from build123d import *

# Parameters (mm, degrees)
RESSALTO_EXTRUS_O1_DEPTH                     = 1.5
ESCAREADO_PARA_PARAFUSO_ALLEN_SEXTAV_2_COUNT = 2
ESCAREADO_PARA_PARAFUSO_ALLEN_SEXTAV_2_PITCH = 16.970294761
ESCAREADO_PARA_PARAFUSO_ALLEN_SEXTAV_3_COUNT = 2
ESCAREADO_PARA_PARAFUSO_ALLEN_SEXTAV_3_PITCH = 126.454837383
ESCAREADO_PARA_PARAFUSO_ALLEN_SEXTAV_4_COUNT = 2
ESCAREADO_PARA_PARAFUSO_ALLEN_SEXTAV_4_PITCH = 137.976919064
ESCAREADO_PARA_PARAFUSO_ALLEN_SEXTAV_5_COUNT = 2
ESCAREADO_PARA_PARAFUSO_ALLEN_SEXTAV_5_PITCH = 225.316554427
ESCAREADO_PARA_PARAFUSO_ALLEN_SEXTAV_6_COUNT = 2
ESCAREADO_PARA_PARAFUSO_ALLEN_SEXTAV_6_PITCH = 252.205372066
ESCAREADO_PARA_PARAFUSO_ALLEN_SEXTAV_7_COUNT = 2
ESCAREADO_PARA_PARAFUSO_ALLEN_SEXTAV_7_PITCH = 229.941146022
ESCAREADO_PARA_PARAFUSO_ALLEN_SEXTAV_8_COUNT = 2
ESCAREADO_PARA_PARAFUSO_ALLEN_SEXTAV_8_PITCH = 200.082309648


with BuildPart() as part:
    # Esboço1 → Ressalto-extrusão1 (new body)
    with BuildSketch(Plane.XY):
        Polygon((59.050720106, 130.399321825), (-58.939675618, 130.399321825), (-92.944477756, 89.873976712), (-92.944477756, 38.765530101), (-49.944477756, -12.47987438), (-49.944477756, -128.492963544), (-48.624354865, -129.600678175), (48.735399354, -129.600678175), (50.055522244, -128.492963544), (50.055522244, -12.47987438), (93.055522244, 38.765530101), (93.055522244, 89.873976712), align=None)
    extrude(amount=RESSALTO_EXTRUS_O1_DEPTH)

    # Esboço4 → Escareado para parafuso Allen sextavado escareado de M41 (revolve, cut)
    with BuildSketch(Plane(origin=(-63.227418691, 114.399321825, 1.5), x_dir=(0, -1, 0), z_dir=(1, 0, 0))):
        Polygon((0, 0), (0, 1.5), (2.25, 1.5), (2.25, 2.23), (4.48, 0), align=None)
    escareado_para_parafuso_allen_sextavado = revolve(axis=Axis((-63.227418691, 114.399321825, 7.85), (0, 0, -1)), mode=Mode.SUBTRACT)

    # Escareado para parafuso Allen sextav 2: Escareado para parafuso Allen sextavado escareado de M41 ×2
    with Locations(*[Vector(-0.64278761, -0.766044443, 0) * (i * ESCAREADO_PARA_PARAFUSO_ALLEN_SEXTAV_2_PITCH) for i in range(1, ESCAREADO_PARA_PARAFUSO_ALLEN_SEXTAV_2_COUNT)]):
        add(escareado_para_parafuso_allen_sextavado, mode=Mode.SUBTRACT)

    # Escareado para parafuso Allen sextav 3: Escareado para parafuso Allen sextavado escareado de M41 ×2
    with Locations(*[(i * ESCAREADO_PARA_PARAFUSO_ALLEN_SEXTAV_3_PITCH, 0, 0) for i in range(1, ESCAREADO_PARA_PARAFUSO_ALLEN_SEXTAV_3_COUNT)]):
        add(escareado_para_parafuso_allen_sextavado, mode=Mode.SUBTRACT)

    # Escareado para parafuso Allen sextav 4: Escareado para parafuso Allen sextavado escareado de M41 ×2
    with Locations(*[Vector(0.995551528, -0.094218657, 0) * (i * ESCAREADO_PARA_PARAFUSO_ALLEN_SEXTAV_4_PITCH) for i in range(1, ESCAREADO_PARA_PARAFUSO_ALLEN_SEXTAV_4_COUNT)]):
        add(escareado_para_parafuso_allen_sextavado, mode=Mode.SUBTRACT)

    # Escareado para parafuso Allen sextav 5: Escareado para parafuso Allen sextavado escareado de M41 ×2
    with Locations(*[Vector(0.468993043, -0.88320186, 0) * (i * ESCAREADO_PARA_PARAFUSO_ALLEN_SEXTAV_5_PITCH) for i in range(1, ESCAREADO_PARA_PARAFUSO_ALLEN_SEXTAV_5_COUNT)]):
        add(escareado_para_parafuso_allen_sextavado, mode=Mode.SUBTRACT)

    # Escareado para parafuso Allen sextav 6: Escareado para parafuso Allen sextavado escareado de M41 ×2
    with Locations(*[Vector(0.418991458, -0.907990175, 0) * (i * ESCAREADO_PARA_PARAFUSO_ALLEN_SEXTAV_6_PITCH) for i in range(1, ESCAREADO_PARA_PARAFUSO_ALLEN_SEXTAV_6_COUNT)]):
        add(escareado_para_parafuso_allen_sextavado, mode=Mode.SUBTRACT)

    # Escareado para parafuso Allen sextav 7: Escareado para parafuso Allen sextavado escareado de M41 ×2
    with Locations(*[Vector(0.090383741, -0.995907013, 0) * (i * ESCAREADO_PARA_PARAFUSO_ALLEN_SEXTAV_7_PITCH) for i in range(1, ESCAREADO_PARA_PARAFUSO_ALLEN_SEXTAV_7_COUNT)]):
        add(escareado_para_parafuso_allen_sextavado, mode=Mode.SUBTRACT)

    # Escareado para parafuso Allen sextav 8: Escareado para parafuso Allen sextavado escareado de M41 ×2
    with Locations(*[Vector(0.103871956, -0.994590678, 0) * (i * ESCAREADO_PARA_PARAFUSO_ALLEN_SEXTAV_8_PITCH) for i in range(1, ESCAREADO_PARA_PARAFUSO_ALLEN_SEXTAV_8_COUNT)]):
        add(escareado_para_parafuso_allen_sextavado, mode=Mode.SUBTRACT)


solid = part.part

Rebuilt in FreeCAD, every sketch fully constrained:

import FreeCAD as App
import Part
import Sketcher
Q = App.Units.Quantity


def add_polygon(sketch, points):
    """Adds a closed chain of lines whose ends are joined by coincident constraints."""
    first, n = sketch.GeometryCount, len(points)
    for a, b in zip(points, points[1:] + points[:1]):
        sketch.addGeometry(Part.LineSegment(App.Vector(*a, 0), App.Vector(*b, 0)), False)
    for i in range(n):
        sketch.addConstraint(Sketcher.Constraint("Coincident", first + i, 2, first + (i + 1) % n, 1))

doc = App.newDocument("Part")
params = doc.addObject("Spreadsheet::Sheet", "Params")
for row, (alias, value) in enumerate([
    ("pad1_length", "1.5 mm"),
    ("sketch2_height", "1.5 mm"),
    ("sketch2_width", "4.48 mm"),
    ("sketch2_width2", "2.25 mm"),
    ("groove_angle", "360 deg"),
    ("linearpattern_pitch", "16.970295 mm"),
    ("linearpattern2_pitch", "126.454837 mm"),
    ("linearpattern3_pitch", "137.976919 mm"),
    ("linearpattern4_pitch", "225.316554 mm"),
    ("linearpattern5_pitch", "252.205372 mm"),
    ("linearpattern6_pitch", "229.941146 mm"),
    ("linearpattern7_pitch", "200.08231 mm"),
], start=1):
    params.set(f"A{row}", alias)
    params.set(f"B{row}", "=" + value)
    params.setAlias(f"B{row}", alias)

body = doc.addObject("PartDesign::Body", "Body")

# Sketch on XY plane
sketch1 = body.newObject("Sketcher::SketchObject", "Sketch")
sketch1.AttachmentSupport = (doc.getObject("XY_Plane"), [""])
sketch1.MapMode = "FlatFace"
add_polygon(sketch1, [(59.1, 130.4), (-58.9, 130.4), (-92.9, 89.9), (-92.9, 38.8), (-49.9, -12.5), (-49.9, -128.5), (-48.6, -129.6), (48.7, -129.6), (50.1, -128.5), (50.1, -12.5), (93.1, 38.8), (93.1, 89.9)])  # lines 0-11
sketch1.addConstraint([
    Sketcher.Constraint("Horizontal", 0),
    Sketcher.Constraint("Vertical", 2),
    Sketcher.Constraint("Vertical", 4),
    Sketcher.Constraint("Horizontal", 6),
    Sketcher.Constraint("Vertical", 8),
    Sketcher.Constraint("Vertical", 10),
    Sketcher.Constraint("Perpendicular", 1, 5),
    Sketcher.Constraint("Perpendicular", 3, 7),
    Sketcher.Constraint("Perpendicular", 5, 9),
    Sketcher.Constraint("Perpendicular", 7, 11),
    Sketcher.Constraint("Horizontal", 4, 2, 7, 2),
    Sketcher.Constraint("Horizontal", 3, 2, 8, 2),
    Sketcher.Constraint("Horizontal", 2, 2, 9, 2),
    Sketcher.Constraint("Horizontal", 1, 2, 10, 2),
    Sketcher.Constraint("Equal", 5, 7),
    Sketcher.Constraint("Angle", 1, Q("-130 deg")),
    Sketcher.Constraint("DistanceX", 2, 2, 3, 2, Q("43 mm")),
    Sketcher.Constraint("DistanceY", 5, 2, 0, 2, Q("260 mm")),
    Sketcher.Constraint("DistanceX", 4, 2, 7, 2, Q("100 mm")),
    Sketcher.Constraint("Distance", 5, Q("1.723298 mm")),
    Sketcher.Constraint("DistanceY", 4, 2, 4, 1, Q("116.013089 mm")),
    Sketcher.Constraint("DistanceX", -1, 1, 6, 2, Q("48.735399 mm")),
    Sketcher.Constraint("Distance", 1, Q("52.902081 mm")),
    Sketcher.Constraint("DistanceY", -1, 1, 0, 2, Q("130.399322 mm")),
])
pad1 = body.newObject("PartDesign::Pad", "Pad")
pad1.Profile = sketch1
pad1.setExpression("Length", "Params.pad1_length")

# Sketch on YZ plane
sketch2 = body.newObject("Sketcher::SketchObject", "Sketch001")
sketch2.AttachmentSupport = (doc.getObject("YZ_Plane"), [""])
sketch2.MapMode = "FlatFace"
sketch2.AttachmentOffset = App.Placement(App.Vector(0, 0, -63.227419), App.Rotation())
add_polygon(sketch2, [(114.4, 0), (114.4, 1.5), (109.9, 1.5), (112.1, -0.7), (112.1, 0)])  # lines 0-4
sketch2.addGeometry(Part.LineSegment(App.Vector(114.4, 1.5, 0), App.Vector(114.4, -0.7, 0)), True)  # axis
sketch2.addConstraint([
    Sketcher.Constraint("Vertical", 0),
    Sketcher.Constraint("Horizontal", 1),
    Sketcher.Constraint("Vertical", 3),
    Sketcher.Constraint("Horizontal", 4),
    Sketcher.Constraint("Vertical", 5),
    Sketcher.Constraint("Coincident", 5, 1, 0, 2),
    Sketcher.Constraint("PointOnObject", 3, 2, -1),
    Sketcher.Constraint("Horizontal", 2, 2, 5, 2),
    Sketcher.Constraint("Angle", 2, Q("-45 deg")),
    Sketcher.Constraint("DistanceY", 0, 1, 0, 2, Q("1.5 mm")),
    Sketcher.Constraint("DistanceX", 1, 2, 1, 1, Q("4.48 mm")),
    Sketcher.Constraint("DistanceX", 4, 1, 4, 2, Q("2.25 mm")),
    Sketcher.Constraint("DistanceX", -1, 1, 0, 2, Q("114.399322 mm")),
])
sketch2.setExpression("Constraints[14]", "Params.sketch2_height")
sketch2.setExpression("Constraints[15]", "Params.sketch2_width")
sketch2.setExpression("Constraints[16]", "Params.sketch2_width2")
groove = body.newObject("PartDesign::Groove", "Groove")
groove.Profile = sketch2
groove.ReferenceAxis = (sketch2, ["Axis0"])
groove.setExpression("Angle", "Params.groove_angle")
doc.recompute()

datumline = body.newObject("PartDesign::Line", "DatumLine")
datumline.Placement = App.Placement(App.Vector(0, 0, 0), App.Rotation(App.Vector(0, 0, 1), App.Vector(-0.64278761, -0.766044443, 0)))
linearpattern = body.newObject("PartDesign::LinearPattern", "LinearPattern")
linearpattern.Originals = [groove]
linearpattern.Direction = (datumline, [""])
linearpattern.Mode = "offset"
linearpattern.setExpression("Offset", "Params.linearpattern_pitch")
linearpattern.Occurrences = 2
body.Tip = linearpattern
doc.recompute()

linearpattern2 = body.newObject("PartDesign::LinearPattern", "LinearPattern001")
linearpattern2.Originals = [groove]
linearpattern2.Direction = (doc.getObject("X_Axis"), [""])
linearpattern2.Mode = "offset"
linearpattern2.setExpression("Offset", "Params.linearpattern2_pitch")
linearpattern2.Occurrences = 2
body.Tip = linearpattern2
doc.recompute()

datumline2 = body.newObject("PartDesign::Line", "DatumLine001")
datumline2.Placement = App.Placement(App.Vector(0, 0, 0), App.Rotation(App.Vector(0, 0, 1), App.Vector(0.995551528, -0.094218657, 0)))
linearpattern3 = body.newObject("PartDesign::LinearPattern", "LinearPattern002")
linearpattern3.Originals = [groove]
linearpattern3.Direction = (datumline2, [""])
linearpattern3.Mode = "offset"
linearpattern3.setExpression("Offset", "Params.linearpattern3_pitch")
linearpattern3.Occurrences = 2
body.Tip = linearpattern3
doc.recompute()

datumline3 = body.newObject("PartDesign::Line", "DatumLine002")
datumline3.Placement = App.Placement(App.Vector(0, 0, 0), App.Rotation(App.Vector(0, 0, 1), App.Vector(0.468993043, -0.88320186, 0)))
linearpattern4 = body.newObject("PartDesign::LinearPattern", "LinearPattern003")
linearpattern4.Originals = [groove]
linearpattern4.Direction = (datumline3, [""])
linearpattern4.Mode = "offset"
linearpattern4.setExpression("Offset", "Params.linearpattern4_pitch")
linearpattern4.Occurrences = 2
body.Tip = linearpattern4
doc.recompute()

datumline4 = body.newObject("PartDesign::Line", "DatumLine003")
datumline4.Placement = App.Placement(App.Vector(0, 0, 0), App.Rotation(App.Vector(0, 0, 1), App.Vector(0.418991458, -0.907990175, 0)))
linearpattern5 = body.newObject("PartDesign::LinearPattern", "LinearPattern004")
linearpattern5.Originals = [groove]
linearpattern5.Direction = (datumline4, [""])
linearpattern5.Mode = "offset"
linearpattern5.setExpression("Offset", "Params.linearpattern5_pitch")
linearpattern5.Occurrences = 2
body.Tip = linearpattern5
doc.recompute()

datumline5 = body.newObject("PartDesign::Line", "DatumLine004")
datumline5.Placement = App.Placement(App.Vector(0, 0, 0), App.Rotation(App.Vector(0, 0, 1), App.Vector(0.090383741, -0.995907013, 0)))
linearpattern6 = body.newObject("PartDesign::LinearPattern", "LinearPattern005")
linearpattern6.Originals = [groove]
linearpattern6.Direction = (datumline5, [""])
linearpattern6.Mode = "offset"
linearpattern6.setExpression("Offset", "Params.linearpattern6_pitch")
linearpattern6.Occurrences = 2
body.Tip = linearpattern6
doc.recompute()

datumline6 = body.newObject("PartDesign::Line", "DatumLine005")
datumline6.Placement = App.Placement(App.Vector(0, 0, 0), App.Rotation(App.Vector(0, 0, 1), App.Vector(0.103871956, -0.994590678, 0)))
linearpattern7 = body.newObject("PartDesign::LinearPattern", "LinearPattern006")
linearpattern7.Originals = [groove]
linearpattern7.Direction = (datumline6, [""])
linearpattern7.Mode = "offset"
linearpattern7.setExpression("Offset", "Params.linearpattern7_pitch")
linearpattern7.Occurrences = 2
body.Tip = linearpattern7

doc.recompute()
